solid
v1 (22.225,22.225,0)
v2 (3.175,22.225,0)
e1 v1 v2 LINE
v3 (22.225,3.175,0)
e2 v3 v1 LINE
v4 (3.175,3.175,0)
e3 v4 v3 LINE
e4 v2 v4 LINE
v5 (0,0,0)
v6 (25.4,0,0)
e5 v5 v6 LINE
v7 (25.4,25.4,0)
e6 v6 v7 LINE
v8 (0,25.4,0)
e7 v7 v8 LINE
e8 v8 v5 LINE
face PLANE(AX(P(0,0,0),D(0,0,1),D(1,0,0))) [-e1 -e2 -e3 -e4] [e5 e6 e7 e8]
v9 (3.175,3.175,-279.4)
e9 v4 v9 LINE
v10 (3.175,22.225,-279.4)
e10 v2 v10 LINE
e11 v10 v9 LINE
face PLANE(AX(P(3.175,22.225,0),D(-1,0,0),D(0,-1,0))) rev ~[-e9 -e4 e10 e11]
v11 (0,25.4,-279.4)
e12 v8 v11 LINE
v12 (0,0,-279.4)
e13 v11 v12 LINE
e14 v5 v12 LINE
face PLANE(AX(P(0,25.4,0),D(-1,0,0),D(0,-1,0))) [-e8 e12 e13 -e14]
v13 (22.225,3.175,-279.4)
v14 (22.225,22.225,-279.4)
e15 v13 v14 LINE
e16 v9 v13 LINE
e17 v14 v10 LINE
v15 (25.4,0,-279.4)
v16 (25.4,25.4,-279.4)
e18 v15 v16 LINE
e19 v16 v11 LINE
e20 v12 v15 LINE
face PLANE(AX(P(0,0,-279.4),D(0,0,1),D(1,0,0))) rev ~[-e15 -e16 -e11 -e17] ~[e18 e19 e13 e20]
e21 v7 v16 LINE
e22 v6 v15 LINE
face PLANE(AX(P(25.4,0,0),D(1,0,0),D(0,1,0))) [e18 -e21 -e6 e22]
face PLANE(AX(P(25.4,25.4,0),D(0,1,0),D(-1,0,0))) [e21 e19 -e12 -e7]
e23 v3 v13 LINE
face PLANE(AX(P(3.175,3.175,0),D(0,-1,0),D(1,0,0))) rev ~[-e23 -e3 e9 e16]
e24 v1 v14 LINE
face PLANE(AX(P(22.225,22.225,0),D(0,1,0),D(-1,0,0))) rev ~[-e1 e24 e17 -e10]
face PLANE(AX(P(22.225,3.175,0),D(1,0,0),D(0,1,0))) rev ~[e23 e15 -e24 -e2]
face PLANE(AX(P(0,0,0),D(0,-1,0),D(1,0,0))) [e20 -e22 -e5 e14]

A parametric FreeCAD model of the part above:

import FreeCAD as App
import Part
import Sketcher
Q = App.Units.Quantity

doc = App.newDocument("Part")
params = doc.addObject("Spreadsheet::Sheet", "Params")
for row, (alias, value) in enumerate([
    ("sketch1_width", "1 in"),
    ("pad1_length", "11 in"),
], start=1):
    params.set(f"A{row}", alias)
    params.set(f"B{row}", "=" + value)
    params.setAlias(f"B{row}", alias)

body = doc.addObject("PartDesign::Body", "Body")

# Sketch on XY plane
sketch1 = body.newObject("Sketcher::SketchObject", "Sketch")
sketch1.AttachmentSupport = (doc.getObject("XY_Plane"), [""])
sketch1.MapMode = "FlatFace"
sketch1.addGeometry([
    Part.LineSegment(App.Vector(0, 25, 0), App.Vector(0, 0, 0)),  # 0
    Part.LineSegment(App.Vector(0, 0, 0), App.Vector(25, 0, 0)),  # 1
    Part.LineSegment(App.Vector(25, 0, 0), App.Vector(25, 25, 0)),  # 2
    Part.LineSegment(App.Vector(25, 25, 0), App.Vector(0, 25, 0)),  # 3
    Part.LineSegment(App.Vector(22, 3, 0), App.Vector(3, 3, 0)),  # 4
    Part.LineSegment(App.Vector(3, 3, 0), App.Vector(3, 22, 0)),  # 5
    Part.LineSegment(App.Vector(3, 22, 0), App.Vector(22, 22, 0)),  # 6
    Part.LineSegment(App.Vector(22, 22, 0), App.Vector(22, 3, 0)),  # 7
], False)
sketch1.addConstraint([
    Sketcher.Constraint("Coincident", 0, 2, 1, 1),
    Sketcher.Constraint("Coincident", 1, 2, 2, 1),
    Sketcher.Constraint("Coincident", 2, 2, 3, 1),
    Sketcher.Constraint("Coincident", 3, 2, 0, 1),
    Sketcher.Constraint("Coincident", 4, 2, 5, 1),
    Sketcher.Constraint("Coincident", 5, 2, 6, 1),
    Sketcher.Constraint("Coincident", 6, 2, 7, 1),
    Sketcher.Constraint("Coincident", 7, 2, 4, 1),
    Sketcher.Constraint("Vertical", 0),
    Sketcher.Constraint("Horizontal", 1),
    Sketcher.Constraint("Vertical", 2),
    Sketcher.Constraint("Horizontal", 3),
    Sketcher.Constraint("Horizontal", 4),
    Sketcher.Constraint("Vertical", 5),
    Sketcher.Constraint("Horizontal", 6),
    Sketcher.Constraint("Vertical", 7),
    Sketcher.Constraint("Coincident", 0, 2, -1, 1),
    Sketcher.Constraint("Equal", 3, 0),
    Sketcher.Constraint("Equal", 6, 5),
    Sketcher.Constraint("DistanceX", 1, 1, 1, 2, Q("1 in")),
    Sketcher.Constraint("DistanceX", -1, 1, 4, 2, Q("0.125 in")),
    Sketcher.Constraint("DistanceY", -1, 1, 4, 2, Q("0.125 in")),
    Sketcher.Constraint("DistanceY", 5, 2, 3, 2, Q("0.125 in")),
])
sketch1.setExpression("Constraints[19]", "Params.sketch1_width")
pad1 = body.newObject("PartDesign::Pad", "Pad")
pad1.Profile = sketch1
pad1.setExpression("Length", "Params.pad1_length")
pad1.Reversed = True

doc.recompute()
